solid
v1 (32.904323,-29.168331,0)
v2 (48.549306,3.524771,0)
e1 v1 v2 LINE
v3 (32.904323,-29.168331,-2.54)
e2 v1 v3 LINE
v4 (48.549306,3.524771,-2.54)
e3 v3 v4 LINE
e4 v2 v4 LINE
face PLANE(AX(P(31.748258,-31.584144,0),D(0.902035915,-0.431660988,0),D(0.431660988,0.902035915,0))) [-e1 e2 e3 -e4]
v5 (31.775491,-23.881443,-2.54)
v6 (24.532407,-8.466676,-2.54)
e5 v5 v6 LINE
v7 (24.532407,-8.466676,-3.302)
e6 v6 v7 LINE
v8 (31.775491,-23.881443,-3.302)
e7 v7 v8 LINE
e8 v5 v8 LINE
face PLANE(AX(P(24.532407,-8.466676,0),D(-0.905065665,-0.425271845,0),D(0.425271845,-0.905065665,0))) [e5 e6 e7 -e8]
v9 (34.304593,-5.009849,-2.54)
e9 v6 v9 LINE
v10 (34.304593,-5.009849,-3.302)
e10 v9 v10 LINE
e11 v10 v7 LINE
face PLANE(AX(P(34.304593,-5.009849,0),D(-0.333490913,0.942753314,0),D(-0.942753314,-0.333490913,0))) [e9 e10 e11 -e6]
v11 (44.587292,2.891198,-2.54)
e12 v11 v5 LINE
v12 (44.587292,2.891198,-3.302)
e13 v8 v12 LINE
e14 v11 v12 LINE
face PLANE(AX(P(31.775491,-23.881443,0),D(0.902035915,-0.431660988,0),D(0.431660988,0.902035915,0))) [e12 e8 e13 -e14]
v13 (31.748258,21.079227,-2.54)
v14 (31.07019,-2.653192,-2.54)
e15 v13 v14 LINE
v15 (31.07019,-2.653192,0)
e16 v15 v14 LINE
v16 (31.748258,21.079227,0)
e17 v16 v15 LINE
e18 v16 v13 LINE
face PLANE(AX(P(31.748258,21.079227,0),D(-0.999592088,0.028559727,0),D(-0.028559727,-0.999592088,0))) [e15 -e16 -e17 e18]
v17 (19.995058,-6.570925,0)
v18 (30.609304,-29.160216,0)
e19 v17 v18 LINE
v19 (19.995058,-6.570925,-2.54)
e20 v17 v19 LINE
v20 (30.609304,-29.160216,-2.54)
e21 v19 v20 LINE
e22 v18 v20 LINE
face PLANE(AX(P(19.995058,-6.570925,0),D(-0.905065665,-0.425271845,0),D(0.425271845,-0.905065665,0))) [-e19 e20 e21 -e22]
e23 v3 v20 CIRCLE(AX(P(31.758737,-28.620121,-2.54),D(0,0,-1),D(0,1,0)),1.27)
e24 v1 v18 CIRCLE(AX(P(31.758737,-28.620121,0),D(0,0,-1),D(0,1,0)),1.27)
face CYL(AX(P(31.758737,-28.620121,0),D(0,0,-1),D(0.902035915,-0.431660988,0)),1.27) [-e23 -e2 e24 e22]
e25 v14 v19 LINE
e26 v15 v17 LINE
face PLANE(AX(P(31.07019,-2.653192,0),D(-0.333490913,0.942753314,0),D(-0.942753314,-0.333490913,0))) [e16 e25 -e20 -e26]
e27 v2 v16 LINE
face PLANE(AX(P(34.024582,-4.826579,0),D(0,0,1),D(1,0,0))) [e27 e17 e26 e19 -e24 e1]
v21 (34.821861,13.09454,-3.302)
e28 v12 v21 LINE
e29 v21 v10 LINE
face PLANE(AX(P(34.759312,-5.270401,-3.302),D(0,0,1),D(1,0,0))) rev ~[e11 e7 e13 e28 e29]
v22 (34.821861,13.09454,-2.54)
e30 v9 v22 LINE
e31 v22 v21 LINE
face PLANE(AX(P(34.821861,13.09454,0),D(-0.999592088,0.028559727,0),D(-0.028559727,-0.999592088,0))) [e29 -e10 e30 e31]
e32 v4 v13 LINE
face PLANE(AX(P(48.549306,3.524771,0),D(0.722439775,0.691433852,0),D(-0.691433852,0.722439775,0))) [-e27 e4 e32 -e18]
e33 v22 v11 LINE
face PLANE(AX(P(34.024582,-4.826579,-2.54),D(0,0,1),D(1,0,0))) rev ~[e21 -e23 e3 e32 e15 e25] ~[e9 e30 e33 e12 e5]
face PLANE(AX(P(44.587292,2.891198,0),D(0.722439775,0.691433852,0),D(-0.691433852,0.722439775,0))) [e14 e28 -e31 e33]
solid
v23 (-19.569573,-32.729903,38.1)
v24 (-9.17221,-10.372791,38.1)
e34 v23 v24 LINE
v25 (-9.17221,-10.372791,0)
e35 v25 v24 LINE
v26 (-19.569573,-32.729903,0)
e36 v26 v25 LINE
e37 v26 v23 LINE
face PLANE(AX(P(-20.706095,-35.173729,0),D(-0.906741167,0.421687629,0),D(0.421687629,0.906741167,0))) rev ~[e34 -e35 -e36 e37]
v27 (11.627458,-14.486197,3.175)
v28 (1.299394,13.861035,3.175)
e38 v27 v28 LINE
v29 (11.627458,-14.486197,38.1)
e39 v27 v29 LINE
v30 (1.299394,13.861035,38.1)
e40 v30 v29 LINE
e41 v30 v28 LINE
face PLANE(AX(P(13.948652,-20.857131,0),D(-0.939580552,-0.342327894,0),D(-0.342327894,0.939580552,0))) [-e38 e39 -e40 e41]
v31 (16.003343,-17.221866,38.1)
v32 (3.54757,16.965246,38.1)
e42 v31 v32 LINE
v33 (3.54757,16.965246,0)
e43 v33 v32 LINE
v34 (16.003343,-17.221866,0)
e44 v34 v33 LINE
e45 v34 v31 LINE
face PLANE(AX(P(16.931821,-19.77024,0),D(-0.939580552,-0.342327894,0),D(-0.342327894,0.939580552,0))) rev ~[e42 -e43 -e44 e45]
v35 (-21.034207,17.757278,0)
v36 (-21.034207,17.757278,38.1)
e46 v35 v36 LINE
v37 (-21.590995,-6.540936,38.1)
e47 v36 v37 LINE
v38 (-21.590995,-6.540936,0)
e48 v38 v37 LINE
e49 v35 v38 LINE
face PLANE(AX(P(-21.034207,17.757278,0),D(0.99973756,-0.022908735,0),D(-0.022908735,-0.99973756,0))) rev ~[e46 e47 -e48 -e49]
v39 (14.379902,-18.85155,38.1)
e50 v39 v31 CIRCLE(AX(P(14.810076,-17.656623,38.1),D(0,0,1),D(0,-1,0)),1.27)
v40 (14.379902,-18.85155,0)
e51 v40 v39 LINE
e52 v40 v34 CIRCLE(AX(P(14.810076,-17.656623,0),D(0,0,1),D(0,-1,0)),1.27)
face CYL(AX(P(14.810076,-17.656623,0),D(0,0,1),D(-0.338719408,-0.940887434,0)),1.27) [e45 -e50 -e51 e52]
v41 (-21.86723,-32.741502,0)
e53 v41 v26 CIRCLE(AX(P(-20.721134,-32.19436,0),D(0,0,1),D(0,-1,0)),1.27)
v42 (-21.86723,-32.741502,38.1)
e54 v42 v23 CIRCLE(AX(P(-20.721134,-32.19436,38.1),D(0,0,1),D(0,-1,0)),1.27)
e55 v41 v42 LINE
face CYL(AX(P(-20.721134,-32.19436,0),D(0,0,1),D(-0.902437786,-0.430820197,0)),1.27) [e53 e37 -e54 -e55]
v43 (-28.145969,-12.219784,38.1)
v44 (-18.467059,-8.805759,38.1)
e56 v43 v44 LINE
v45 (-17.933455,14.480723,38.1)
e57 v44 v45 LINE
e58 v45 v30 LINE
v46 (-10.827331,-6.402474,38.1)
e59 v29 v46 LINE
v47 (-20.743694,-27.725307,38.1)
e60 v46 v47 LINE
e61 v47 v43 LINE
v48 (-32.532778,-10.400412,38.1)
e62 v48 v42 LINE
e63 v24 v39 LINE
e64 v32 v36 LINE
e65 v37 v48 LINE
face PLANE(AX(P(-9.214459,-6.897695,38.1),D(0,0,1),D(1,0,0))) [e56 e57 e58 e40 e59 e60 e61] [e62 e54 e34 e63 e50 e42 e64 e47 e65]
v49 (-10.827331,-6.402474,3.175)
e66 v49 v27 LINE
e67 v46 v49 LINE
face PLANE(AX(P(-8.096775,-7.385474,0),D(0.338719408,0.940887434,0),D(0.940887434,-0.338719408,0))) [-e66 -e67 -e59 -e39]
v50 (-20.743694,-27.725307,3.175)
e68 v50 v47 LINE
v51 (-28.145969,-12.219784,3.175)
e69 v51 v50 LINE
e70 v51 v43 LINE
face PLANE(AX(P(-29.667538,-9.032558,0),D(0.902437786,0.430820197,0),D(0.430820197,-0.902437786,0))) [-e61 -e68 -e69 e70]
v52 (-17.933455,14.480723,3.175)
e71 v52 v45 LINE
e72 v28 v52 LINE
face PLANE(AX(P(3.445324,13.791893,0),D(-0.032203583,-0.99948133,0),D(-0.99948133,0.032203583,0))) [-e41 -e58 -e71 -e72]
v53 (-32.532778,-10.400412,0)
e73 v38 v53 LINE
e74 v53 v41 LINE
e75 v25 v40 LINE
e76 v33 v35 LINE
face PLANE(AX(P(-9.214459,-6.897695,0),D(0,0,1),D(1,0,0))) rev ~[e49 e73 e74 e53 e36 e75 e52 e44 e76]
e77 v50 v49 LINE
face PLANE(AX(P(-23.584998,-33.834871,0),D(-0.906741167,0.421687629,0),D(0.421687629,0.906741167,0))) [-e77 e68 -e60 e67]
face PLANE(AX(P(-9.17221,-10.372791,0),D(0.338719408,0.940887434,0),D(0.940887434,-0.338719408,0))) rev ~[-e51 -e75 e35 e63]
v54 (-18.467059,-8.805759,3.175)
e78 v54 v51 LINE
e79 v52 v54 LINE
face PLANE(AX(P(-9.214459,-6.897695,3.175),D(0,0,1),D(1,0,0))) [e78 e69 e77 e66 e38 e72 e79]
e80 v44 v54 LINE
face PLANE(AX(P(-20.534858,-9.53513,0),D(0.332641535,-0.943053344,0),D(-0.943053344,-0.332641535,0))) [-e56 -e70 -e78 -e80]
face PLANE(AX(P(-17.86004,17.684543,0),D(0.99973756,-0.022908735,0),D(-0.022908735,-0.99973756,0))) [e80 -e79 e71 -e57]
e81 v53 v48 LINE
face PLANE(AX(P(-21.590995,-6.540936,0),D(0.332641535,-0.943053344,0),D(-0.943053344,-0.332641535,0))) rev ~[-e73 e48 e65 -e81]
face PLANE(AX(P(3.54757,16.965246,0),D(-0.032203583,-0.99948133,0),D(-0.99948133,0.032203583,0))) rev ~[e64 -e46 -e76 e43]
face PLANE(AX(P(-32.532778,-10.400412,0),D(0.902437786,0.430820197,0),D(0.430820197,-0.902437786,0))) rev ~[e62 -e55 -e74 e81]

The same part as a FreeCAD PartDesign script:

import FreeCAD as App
import Part
import Sketcher
Q = App.Units.Quantity


def edges_at(feature, points):
    """Names of the edges that pass closest to the given points."""
    edges = feature.Shape.Edges
    near = lambda p: min(range(len(edges)), key=lambda i: edges[i].distToShape(Part.Vertex(*p))[0])
    return sorted({f"Edge{near(p) + 1}" for p in points})


def faces_at(feature, points):
    """Names of the faces that lie closest to the given points."""
    faces = feature.Shape.Faces
    near = lambda p: min(range(len(faces)), key=lambda i: faces[i].distToShape(Part.Vertex(*p))[0])
    return sorted({f"Face{near(p) + 1}" for p in points})

doc = App.newDocument("Part")
body = doc.addObject("PartDesign::Body", "Body")

sketch1 = body.newObject("Sketcher::SketchObject", "Sketch")
sketch1.AttachmentSupport = (doc.getObject("XY_Plane"), [""])
sketch1.MapMode = "FlatFace"
sketch1.addGeometry([
    Part.LineSegment(App.Vector(32, -24, 0), App.Vector(45, 3, 0)),
    Part.LineSegment(App.Vector(45, 3, 0), App.Vector(35, 13, 0)),
    Part.LineSegment(App.Vector(35, 13, 0), App.Vector(34, -5, 0)),
    Part.LineSegment(App.Vector(34, -5, 0), App.Vector(25, -8, 0)),
    Part.LineSegment(App.Vector(25, -8, 0), App.Vector(32, -24, 0)),
], False)
sketch1.addConstraint([
    Sketcher.Constraint("Coincident", 0, 2, 1, 1),
    Sketcher.Constraint("Coincident", 1, 2, 2, 1),
    Sketcher.Constraint("Coincident", 2, 2, 3, 1),
    Sketcher.Constraint("Coincident", 3, 2, 4, 1),
    Sketcher.Constraint("Coincident", 4, 2, 0, 1),
    Sketcher.Constraint("DistanceY", -1, 1, 0, 2, 2.891198),
    Sketcher.Constraint("DistanceX", 2, 2, 0, 2, 10.282699),
    Sketcher.Constraint("DistanceX", 4, 2, 0, 2, 12.811801),
    Sketcher.Constraint("Distance", 0, 29.680239),
    Sketcher.Constraint("Distance", 1, 14.12345),
    Sketcher.Constraint("Distance", 3, 10.365581),
    Sketcher.Constraint("DistanceX", -1, 1, 1, 2, 34.821861),
    Sketcher.Constraint("DistanceY", -1, 1, 1, 2, 13.09454),
    Sketcher.Constraint("DistanceY", 2, 2, -1, 1, 5.009849),
    Sketcher.Constraint("Distance", 4, 17.031656),
])
pad1 = body.newObject("PartDesign::Pad", "Pad")
pad1.Profile = sketch1
pad1.Length = Q("0.13 in")
pad1.Reversed = True

sketch2 = body.newObject("Sketcher::SketchObject", "Sketch001")
sketch2.AttachmentSupport = (doc.getObject("XY_Plane"), [""])
sketch2.MapMode = "FlatFace"
sketch2.addGeometry([
    Part.LineSegment(App.Vector(49, 4, 0), App.Vector(32, 21, 0)),
    Part.LineSegment(App.Vector(32, 21, 0), App.Vector(31, -3, 0)),
    Part.LineSegment(App.Vector(31, -3, 0), App.Vector(20, -7, 0)),
    Part.LineSegment(App.Vector(20, -7, 0), App.Vector(32, -32, 0)),
    Part.LineSegment(App.Vector(32, -32, 0), App.Vector(49, 4, 0)),
    Part.LineSegment(App.Vector(34, -5, 0), App.Vector(35, 13, 0)),
    Part.LineSegment(App.Vector(35, 13, 0), App.Vector(45, 3, 0)),
    Part.LineSegment(App.Vector(45, 3, 0), App.Vector(32, -24, 0)),
    Part.LineSegment(App.Vector(32, -24, 0), App.Vector(25, -8, 0)),
    Part.LineSegment(App.Vector(25, -8, 0), App.Vector(34, -5, 0)),
], False)
sketch2.addConstraint([
    Sketcher.Constraint("Coincident", 0, 2, 1, 1),
    Sketcher.Constraint("Coincident", 1, 2, 2, 1),
    Sketcher.Constraint("Coincident", 2, 2, 3, 1),
    Sketcher.Constraint("Coincident", 3, 2, 4, 1),
    Sketcher.Constraint("Coincident", 4, 2, 0, 1),
    Sketcher.Constraint("Coincident", 5, 2, 6, 1),
    Sketcher.Constraint("Coincident", 6, 2, 7, 1),
    Sketcher.Constraint("Coincident", 7, 2, 8, 1),
    Sketcher.Constraint("Coincident", 8, 2, 9, 1),
    Sketcher.Constraint("Coincident", 9, 2, 5, 1),
    Sketcher.Constraint("Parallel", 1, 5),
    Sketcher.Constraint("Parallel", 0, 6),
    Sketcher.Constraint("Parallel", 4, 7),
    Sketcher.Constraint("Parallel", 3, 8),
    Sketcher.Constraint("Parallel", 2, 9),
    Sketcher.Constraint("Vertical", 0, 2, 3, 2),
    Sketcher.Constraint("DistanceY", -1, 1, 6, 2, 2.891198),
    Sketcher.Constraint("DistanceX", 2, 2, 0, 2, 11.7532),
    Sketcher.Constraint("DistanceY", 3, 2, 7, 2, 7.702701),
    Sketcher.Constraint("DistanceX", 1, 2, 7, 2, 0.705302),
    Sketcher.Constraint("DistanceX", 7, 2, 6, 2, 12.811801),
    Sketcher.Constraint("DistanceX", 9, 2, 6, 2, 10.282699),
    Sketcher.Constraint("Distance", 0, 24.298851),
    Sketcher.Constraint("Distance", 3, 27.63691),
    Sketcher.Constraint("Distance", 4, 38.921859),
    Sketcher.Constraint("Distance", 6, 14.12345),
    Sketcher.Constraint("Distance", 7, 29.680239),
    Sketcher.Constraint("Distance", 9, 10.365581),
    Sketcher.Constraint("DistanceX", -1, 1, 1, 2, 31.07019),
    Sketcher.Constraint("DistanceY", 9, 2, -1, 1, 5.009849),
])
pad2 = body.newObject("PartDesign::Pad", "Pad001")
pad2.Profile = sketch2
pad2.Length = Q("0.1 in")
pad2.Reversed = True
doc.recompute()

fillet = body.newObject("PartDesign::Fillet", "Fillet")
fillet.Base = (pad2, edges_at(pad2, [(31.748, -31.584, -1.27)]))
fillet.Radius = Q("0.05 in")
body2 = doc.addObject("PartDesign::Body", "Body001")

sketch3 = body2.newObject("Sketcher::SketchObject", "Sketch002")
sketch3.AttachmentSupport = (doc.getObject("XY_Plane001"), [""])
sketch3.MapMode = "FlatFace"
sketch3.addGeometry([
    Part.LineSegment(App.Vector(4, 17, 0), App.Vector(-21, 18, 0)),
    Part.LineSegment(App.Vector(-21, 18, 0), App.Vector(-22, -7, 0)),
    Part.LineSegment(App.Vector(-22, -7, 0), App.Vector(-33, -10, 0)),
    Part.LineSegment(App.Vector(-33, -10, 0), App.Vector(-21, -35, 0)),
    Part.LineSegment(App.Vector(-21, -35, 0), App.Vector(-9, -10, 0)),
    Part.LineSegment(App.Vector(-9, -10, 0), App.Vector(17, -20, 0)),
    Part.LineSegment(App.Vector(17, -20, 0), App.Vector(4, 17, 0)),
], False)
sketch3.addConstraint([
    Sketcher.Constraint("Coincident", 0, 2, 1, 1),
    Sketcher.Constraint("Coincident", 1, 2, 2, 1),
    Sketcher.Constraint("Coincident", 2, 2, 3, 1),
    Sketcher.Constraint("Coincident", 3, 2, 4, 1),
    Sketcher.Constraint("Coincident", 4, 2, 5, 1),
    Sketcher.Constraint("Coincident", 5, 2, 6, 1),
    Sketcher.Constraint("Coincident", 6, 2, 0, 1),
    Sketcher.Constraint("DistanceX", 1, 2, 3, 2, 0.8849),
    Sketcher.Constraint("DistanceX", 2, 2, 5, 2, 49.464598),
    Sketcher.Constraint("Distance", 3, 27.451552),
    Sketcher.Constraint("Distance", 6, 39.097751),
    Sketcher.Constraint("DistanceY", 2, 2, -1, 1, 10.400412),
    Sketcher.Constraint("DistanceY", 3, 2, -1, 1, 35.173729),
    Sketcher.Constraint("DistanceX", 4, 2, -1, 1, 9.17221),
    Sketcher.Constraint("DistanceY", 4, 2, -1, 1, 10.372791),
    Sketcher.Constraint("DistanceX", -1, 1, 5, 2, 16.931821),
    Sketcher.Constraint("DistanceY", 5, 2, -1, 1, 19.77024),
    Sketcher.Constraint("DistanceX", -1, 1, 6, 2, 3.54757),
    Sketcher.Constraint("DistanceX", 2, 2, 0, 2, 11.49857),
    Sketcher.Constraint("DistanceY", 2, 2, 0, 2, 28.15769),
    Sketcher.Constraint("DistanceY", 1, 2, 6, 2, 23.506182),
])
pad3 = body2.newObject("PartDesign::Pad", "Pad002")
pad3.Profile = sketch3
pad3.Length = Q("1.5 in")
doc.recompute()

thickness = body2.newObject("PartDesign::Thickness", "Thickness")
thickness.Base = (pad3, faces_at(pad3, [(-7.8, -8.708, 38.1)]))
thickness.Value = Q("0.125 in")
thickness.Reversed = True
thickness.Join = "Intersection"
doc.recompute()

fillet2 = body2.newObject("PartDesign::Fillet", "Fillet001")
fillet2.Base = (thickness, edges_at(thickness, [(-20.706, -35.174, 19.05), (16.932, -19.77, 19.05)]))
fillet2.Radius = Q("0.05 in")

doc.recompute()
